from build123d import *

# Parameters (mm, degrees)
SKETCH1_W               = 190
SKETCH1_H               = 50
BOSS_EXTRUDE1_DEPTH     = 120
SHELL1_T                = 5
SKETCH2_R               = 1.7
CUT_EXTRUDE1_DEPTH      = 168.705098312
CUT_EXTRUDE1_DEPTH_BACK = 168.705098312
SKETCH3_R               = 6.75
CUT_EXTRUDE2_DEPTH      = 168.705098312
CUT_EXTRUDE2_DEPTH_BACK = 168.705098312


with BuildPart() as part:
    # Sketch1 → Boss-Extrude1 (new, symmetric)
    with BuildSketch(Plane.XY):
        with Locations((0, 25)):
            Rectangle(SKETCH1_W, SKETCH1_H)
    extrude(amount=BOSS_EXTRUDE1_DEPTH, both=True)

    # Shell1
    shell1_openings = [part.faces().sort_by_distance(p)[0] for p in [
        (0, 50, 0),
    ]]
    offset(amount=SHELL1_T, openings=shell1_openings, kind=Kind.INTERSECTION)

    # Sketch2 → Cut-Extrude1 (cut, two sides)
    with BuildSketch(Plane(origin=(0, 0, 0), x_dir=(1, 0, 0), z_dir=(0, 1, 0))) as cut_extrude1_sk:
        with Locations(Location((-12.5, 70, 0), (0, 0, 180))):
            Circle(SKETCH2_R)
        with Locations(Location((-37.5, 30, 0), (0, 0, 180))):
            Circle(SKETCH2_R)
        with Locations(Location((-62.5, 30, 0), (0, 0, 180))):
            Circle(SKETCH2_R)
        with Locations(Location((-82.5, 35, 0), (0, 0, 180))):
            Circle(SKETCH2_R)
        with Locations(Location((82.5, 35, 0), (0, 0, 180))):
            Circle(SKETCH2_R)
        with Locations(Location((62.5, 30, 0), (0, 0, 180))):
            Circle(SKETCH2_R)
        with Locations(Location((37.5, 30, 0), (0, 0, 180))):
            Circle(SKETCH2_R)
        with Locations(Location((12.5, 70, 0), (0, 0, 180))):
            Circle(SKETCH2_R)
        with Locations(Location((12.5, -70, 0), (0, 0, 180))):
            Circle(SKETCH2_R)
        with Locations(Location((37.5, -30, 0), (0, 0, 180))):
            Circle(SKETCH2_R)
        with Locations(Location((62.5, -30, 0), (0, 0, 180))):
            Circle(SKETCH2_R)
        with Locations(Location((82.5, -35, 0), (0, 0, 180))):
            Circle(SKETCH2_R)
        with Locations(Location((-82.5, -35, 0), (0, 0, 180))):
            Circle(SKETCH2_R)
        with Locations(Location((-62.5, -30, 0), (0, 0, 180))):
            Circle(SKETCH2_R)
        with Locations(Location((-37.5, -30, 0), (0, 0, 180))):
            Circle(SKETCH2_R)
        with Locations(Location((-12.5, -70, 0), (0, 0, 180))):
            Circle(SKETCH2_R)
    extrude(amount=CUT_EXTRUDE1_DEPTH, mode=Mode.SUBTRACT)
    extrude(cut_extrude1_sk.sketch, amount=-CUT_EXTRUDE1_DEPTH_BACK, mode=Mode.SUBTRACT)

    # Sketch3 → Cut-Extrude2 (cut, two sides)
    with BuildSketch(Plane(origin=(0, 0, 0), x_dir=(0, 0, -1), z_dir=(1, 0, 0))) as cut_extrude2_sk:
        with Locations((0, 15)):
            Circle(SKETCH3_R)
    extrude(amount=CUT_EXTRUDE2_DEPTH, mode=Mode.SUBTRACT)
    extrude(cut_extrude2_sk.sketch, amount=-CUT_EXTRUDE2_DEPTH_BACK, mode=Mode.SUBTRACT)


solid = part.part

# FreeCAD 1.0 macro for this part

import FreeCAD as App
import Part
import Sketcher
Q = App.Units.Quantity


def faces_at(feature, points):
    """Names of the faces that lie closest to the given points."""
    faces = feature.Shape.Faces
    near = lambda p: min(range(len(faces)), key=lambda i: faces[i].distToShape(Part.Vertex(*p))[0])
    return sorted({f"Face{near(p) + 1}" for p in points})


def add_polygon(sketch, points):
    """Adds a closed chain of lines whose ends are joined by coincident constraints."""
    first, n = sketch.GeometryCount, len(points)
    for a, b in zip(points, points[1:] + points[:1]):
        sketch.addGeometry(Part.LineSegment(App.Vector(*a, 0), App.Vector(*b, 0)), False)
    for i in range(n):
        sketch.addConstraint(Sketcher.Constraint("Coincident", first + i, 2, first + (i + 1) % n, 1))

doc = App.newDocument("Part")
body = doc.addObject("PartDesign::Body", "Body")

sketch1 = body.newObject("Sketcher::SketchObject", "Sketch")
sketch1.AttachmentSupport = (doc.getObject("XY_Plane"), [""])
sketch1.MapMode = "FlatFace"
add_polygon(sketch1, [(-95, 50), (-95, 0), (95, 0), (95, 50)])
sketch1.addConstraint(Sketcher.Constraint("Vertical", 0))
sketch1.addConstraint(Sketcher.Constraint("Horizontal", 1))
sketch1.addConstraint(Sketcher.Constraint("Vertical", 2))
sketch1.addConstraint(Sketcher.Constraint("Horizontal", 3))
sketch1.addConstraint(Sketcher.Constraint("Symmetric", 0, 2, 1, 2, -1, 1))
sketch1.addConstraint(Sketcher.Constraint("DistanceX", 1, 1, 1, 2, Q("190 mm")))
sketch1.addConstraint(Sketcher.Constraint("DistanceY", 0, 2, 0, 1, Q("50 mm")))
pad1 = body.newObject("PartDesign::Pad", "Pad")
pad1.Profile = sketch1
pad1.Length = 240
pad1.Midplane = True
doc.recompute()

thickness = body.newObject("PartDesign::Thickness", "Thickness")
thickness.Base = (pad1, faces_at(pad1, [(0, 50, 0)]))
thickness.Value = 5
thickness.Reversed = False
thickness.Join = "Intersection"

sketch2 = body.newObject("Sketcher::SketchObject", "Sketch001")
sketch2.AttachmentSupport = (doc.getObject("XZ_Plane"), [""])
sketch2.MapMode = "FlatFace"
sketch2.addGeometry(Part.Circle(App.Vector(-12.5, -70, 0), App.Vector(0, 0, 1), 1.7), False)
sketch2.addGeometry(Part.Circle(App.Vector(-37.5, -30, 0), App.Vector(0, 0, 1), 1.7), False)
sketch2.addGeometry(Part.Circle(App.Vector(-62.5, -30, 0), App.Vector(0, 0, 1), 1.7), False)
sketch2.addGeometry(Part.Circle(App.Vector(-82.5, -35, 0), App.Vector(0, 0, 1), 1.7), False)
sketch2.addGeometry(Part.Circle(App.Vector(82.5, -35, 0), App.Vector(0, 0, 1), 1.7), False)
sketch2.addGeometry(Part.Circle(App.Vector(62.5, -30, 0), App.Vector(0, 0, 1), 1.7), False)
sketch2.addGeometry(Part.Circle(App.Vector(37.5, -30, 0), App.Vector(0, 0, 1), 1.7), False)
sketch2.addGeometry(Part.Circle(App.Vector(12.5, -70, 0), App.Vector(0, 0, 1), 1.7), False)
sketch2.addGeometry(Part.Circle(App.Vector(12.5, 70, 0), App.Vector(0, 0, 1), 1.7), False)
sketch2.addGeometry(Part.Circle(App.Vector(37.5, 30, 0), App.Vector(0, 0, 1), 1.7), False)
sketch2.addGeometry(Part.Circle(App.Vector(62.5, 30, 0), App.Vector(0, 0, 1), 1.7), False)
sketch2.addGeometry(Part.Circle(App.Vector(82.5, 35, 0), App.Vector(0, 0, 1), 1.7), False)
sketch2.addGeometry(Part.Circle(App.Vector(-82.5, 35, 0), App.Vector(0, 0, 1), 1.7), False)
sketch2.addGeometry(Part.Circle(App.Vector(-62.5, 30, 0), App.Vector(0, 0, 1), 1.7), False)
sketch2.addGeometry(Part.Circle(App.Vector(-37.5, 30, 0), App.Vector(0, 0, 1), 1.7), False)
sketch2.addGeometry(Part.Circle(App.Vector(-12.5, 70, 0), App.Vector(0, 0, 1), 1.7), False)
sketch2.addConstraint(Sketcher.Constraint("Equal", 0, 1))
sketch2.addConstraint(Sketcher.Constraint("Equal", 1, 2))
sketch2.addConstraint(Sketcher.Constraint("Equal", 2, 3))
sketch2.addConstraint(Sketcher.Constraint("Equal", 3, 4))
sketch2.addConstraint(Sketcher.Constraint("Equal", 4, 5))
sketch2.addConstraint(Sketcher.Constraint("Equal", 5, 6))
sketch2.addConstraint(Sketcher.Constraint("Equal", 6, 7))
sketch2.addConstraint(Sketcher.Constraint("Equal", 7, 8))
sketch2.addConstraint(Sketcher.Constraint("Equal", 8, 9))
sketch2.addConstraint(Sketcher.Constraint("Equal", 9, 10))
sketch2.addConstraint(Sketcher.Constraint("Equal", 10, 11))
sketch2.addConstraint(Sketcher.Constraint("Equal", 11, 12))
sketch2.addConstraint(Sketcher.Constraint("Equal", 12, 13))
sketch2.addConstraint(Sketcher.Constraint("Equal", 13, 14))
sketch2.addConstraint(Sketcher.Constraint("Equal", 14, 15))
sketch2.addConstraint(Sketcher.Constraint("Symmetric", 0, 3, 8, 3, -1, 1))
sketch2.addConstraint(Sketcher.Constraint("Symmetric", 1, 3, 9, 3, -1, 1))
sketch2.addConstraint(Sketcher.Constraint("Symmetric", 2, 3, 10, 3, -1, 1))
sketch2.addConstraint(Sketcher.Constraint("Symmetric", 3, 3, 11, 3, -1, 1))
sketch2.addConstraint(Sketcher.Constraint("Symmetric", 4, 3, 12, 3, -1, 1))
sketch2.addConstraint(Sketcher.Constraint("Symmetric", 5, 3, 13, 3, -1, 1))
sketch2.addConstraint(Sketcher.Constraint("Symmetric", 6, 3, 14, 3, -1, 1))
sketch2.addConstraint(Sketcher.Constraint("Symmetric", 7, 3, 15, 3, -1, 1))
sketch2.addConstraint(Sketcher.Constraint("Symmetric", 3, 3, 4, 3, -2))
sketch2.addConstraint(Sketcher.Constraint("Symmetric", 2, 3, 5, 3, -2))
sketch2.addConstraint(Sketcher.Constraint("Symmetric", 1, 3, 6, 3, -2))
sketch2.addConstraint(Sketcher.Constraint("Symmetric", 0, 3, 7, 3, -2))
sketch2.addConstraint(Sketcher.Constraint("Horizontal", 1, 3, 2, 3))
sketch2.addConstraint(Sketcher.Constraint("Diameter", 0, Q("3.4 mm")))
sketch2.addConstraint(Sketcher.Constraint("DistanceY", 0, 3, -1, 1, Q("70 mm")))
sketch2.addConstraint(Sketcher.Constraint("DistanceY", 1, 3, -1, 1, Q("30 mm")))
sketch2.addConstraint(Sketcher.Constraint("DistanceY", 3, 3, -1, 1, Q("35 mm")))
sketch2.addConstraint(Sketcher.Constraint("DistanceX", 1, 3, 0, 3, Q("25 mm")))
sketch2.addConstraint(Sketcher.Constraint("DistanceX", 2, 3, 1, 3, Q("25 mm")))
sketch2.addConstraint(Sketcher.Constraint("DistanceX", 3, 3, 2, 3, Q("20 mm")))
sketch2.addConstraint(Sketcher.Constraint("DistanceX", 0, 3, 4, 3, Q("95 mm")))
pocket1 = body.newObject("PartDesign::Pocket", "Pocket")
pocket1.Profile = sketch2
pocket1.Type = "ThroughAll"
pocket1.Midplane = True

sketch3 = body.newObject("Sketcher::SketchObject", "Sketch002")
sketch3.AttachmentSupport = (doc.getObject("YZ_Plane"), [""])
sketch3.MapMode = "FlatFace"
sketch3.addGeometry(Part.Circle(App.Vector(15, 0, 0), App.Vector(0, 0, 1), 6.75), False)
sketch3.addConstraint(Sketcher.Constraint("PointOnObject", 0, 3, -1))
sketch3.addConstraint(Sketcher.Constraint("Diameter", 0, Q("13.5 mm")))
sketch3.addConstraint(Sketcher.Constraint("DistanceX", -1, 1, 0, 3, Q("15 mm")))
pocket2 = body.newObject("PartDesign::Pocket", "Pocket001")
pocket2.Profile = sketch3
pocket2.Type = "ThroughAll"
pocket2.Midplane = True

doc.recompute()
